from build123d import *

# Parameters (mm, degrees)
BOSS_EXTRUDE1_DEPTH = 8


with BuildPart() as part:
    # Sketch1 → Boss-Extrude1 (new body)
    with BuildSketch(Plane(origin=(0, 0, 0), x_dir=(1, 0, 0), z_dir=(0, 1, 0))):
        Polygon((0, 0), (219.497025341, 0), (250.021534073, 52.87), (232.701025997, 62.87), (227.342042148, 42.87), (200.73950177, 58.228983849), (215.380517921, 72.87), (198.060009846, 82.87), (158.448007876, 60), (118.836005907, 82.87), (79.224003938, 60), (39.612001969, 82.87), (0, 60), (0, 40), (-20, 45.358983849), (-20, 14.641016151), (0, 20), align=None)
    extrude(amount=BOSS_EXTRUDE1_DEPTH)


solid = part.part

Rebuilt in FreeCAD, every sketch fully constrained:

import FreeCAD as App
import Part
import Sketcher
Q = App.Units.Quantity


def add_polygon(sketch, points):
    """Adds a closed chain of lines whose ends are joined by coincident constraints."""
    first, n = sketch.GeometryCount, len(points)
    for a, b in zip(points, points[1:] + points[:1]):
        sketch.addGeometry(Part.LineSegment(App.Vector(*a, 0), App.Vector(*b, 0)), False)
    for i in range(n):
        sketch.addConstraint(Sketcher.Constraint("Coincident", first + i, 2, first + (i + 1) % n, 1))

doc = App.newDocument("Part")
params = doc.addObject("Spreadsheet::Sheet", "Params")
for row, (alias, value) in enumerate([
    ("sketch1_height", "20 mm"),
    ("sketch1_length", "20 mm"),
    ("sketch1_length2", "45.74 mm"),
    ("pad1_length", "8 mm"),
], start=1):
    params.set(f"A{row}", alias)
    params.set(f"B{row}", "=" + value)
    params.setAlias(f"B{row}", alias)

body = doc.addObject("PartDesign::Body", "Body")

# Sketch on XZ plane
sketch1 = body.newObject("Sketcher::SketchObject", "Sketch")
sketch1.AttachmentSupport = (doc.getObject("XZ_Plane"), [""])
sketch1.MapMode = "FlatFace"
add_polygon(sketch1, [(0, 0), (219, 0), (250, -53), (233, -63), (227, -43), (201, -58), (215, -73), (198, -83), (158, -60), (119, -83), (79, -60), (40, -83), (0, -60), (0, -40), (-20, -45), (-20, -15), (0, -20)])  # lines 0-16
sketch1.addConstraint(Sketcher.Constraint("Horizontal", 0))
sketch1.addConstraint(Sketcher.Constraint("Vertical", 12))
sketch1.addConstraint(Sketcher.Constraint("Vertical", 14))
sketch1.addConstraint(Sketcher.Constraint("Vertical", 16))
sketch1.addConstraint(Sketcher.Constraint("Coincident", 16, 2, -1, 1))
sketch1.addConstraint(Sketcher.Constraint("PointOnObject", 11, 2, -2))
sketch1.addConstraint(Sketcher.Constraint("Perpendicular", 1, 2))
sketch1.addConstraint(Sketcher.Constraint("Parallel", 2, 4))
sketch1.addConstraint(Sketcher.Constraint("Parallel", 4, 6))
sketch1.addConstraint(Sketcher.Constraint("Parallel", 6, 8))
sketch1.addConstraint(Sketcher.Constraint("Parallel", 7, 9))
sketch1.addConstraint(Sketcher.Constraint("Parallel", 8, 10))
sketch1.addConstraint(Sketcher.Constraint("Parallel", 9, 11))
sketch1.addConstraint(Sketcher.Constraint("Perpendicular", 3, 13))
sketch1.addConstraint(Sketcher.Constraint("Horizontal", 6, 2, 8, 2))
sketch1.addConstraint(Sketcher.Constraint("Horizontal", 7, 2, 9, 2))
sketch1.addConstraint(Sketcher.Constraint("Horizontal", 8, 2, 10, 2))
sketch1.addConstraint(Sketcher.Constraint("Horizontal", 9, 2, 11, 2))
sketch1.addConstraint(Sketcher.Constraint("Equal", 12, 16))
sketch1.addConstraint(Sketcher.Constraint("Equal", 3, 5))
sketch1.addConstraint(Sketcher.Constraint("Equal", 2, 6))
sketch1.addConstraint(Sketcher.Constraint("Equal", 7, 8))
sketch1.addConstraint(Sketcher.Constraint("Equal", 5, 13))
sketch1.addConstraint(Sketcher.Constraint("Equal", 13, 15))
sketch1.addConstraint(Sketcher.Constraint("DistanceY", 12, 1, 12, 2, 20.0))
sketch1.addConstraint(Sketcher.Constraint("Angle", 1, Q("-60 deg")))
sketch1.addConstraint(Sketcher.Constraint("Angle", 3, Q("105 deg")))
sketch1.addConstraint(Sketcher.Constraint("Angle", 5, Q("-45 deg")))
sketch1.addConstraint(Sketcher.Constraint("Distance", 2, 20.0))
sketch1.addConstraint(Sketcher.Constraint("DistanceY", 7, 2, -1, 1, 60.0))
sketch1.addConstraint(Sketcher.Constraint("DistanceX", 13, 2, -1, 1, 20.0))
sketch1.addConstraint(Sketcher.Constraint("DistanceY", 5, 2, 2, 2, 10.0))
sketch1.addConstraint(Sketcher.Constraint("Distance", 7, 45.74))
sketch1.setExpression("Constraints[41]", "Params.sketch1_height")
sketch1.setExpression("Constraints[45]", "Params.sketch1_length")
sketch1.setExpression("Constraints[49]", "Params.sketch1_length2")
pad1 = body.newObject("PartDesign::Pad", "Pad")
pad1.Profile = sketch1
pad1.setExpression("Length", "Params.pad1_length")
pad1.Reversed = True

doc.recompute()
